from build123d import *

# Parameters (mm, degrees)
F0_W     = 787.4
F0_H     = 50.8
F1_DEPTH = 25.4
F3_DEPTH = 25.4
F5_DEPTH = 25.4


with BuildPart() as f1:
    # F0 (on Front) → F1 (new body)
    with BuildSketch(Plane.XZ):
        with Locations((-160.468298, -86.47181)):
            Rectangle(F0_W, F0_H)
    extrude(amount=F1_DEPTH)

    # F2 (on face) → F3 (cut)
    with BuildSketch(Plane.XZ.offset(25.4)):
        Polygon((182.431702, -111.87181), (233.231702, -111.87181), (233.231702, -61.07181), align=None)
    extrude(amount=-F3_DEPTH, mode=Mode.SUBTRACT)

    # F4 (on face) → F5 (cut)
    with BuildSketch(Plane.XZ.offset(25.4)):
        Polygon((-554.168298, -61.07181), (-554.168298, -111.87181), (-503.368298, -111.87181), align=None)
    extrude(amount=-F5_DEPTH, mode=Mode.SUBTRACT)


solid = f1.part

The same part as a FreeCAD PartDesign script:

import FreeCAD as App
import Part
import Sketcher

V = App.Vector
Q = App.Units.Quantity


def add_polygon(sketch, points):
    """Adds a closed chain of lines whose ends are joined by coincident constraints."""
    first, n = sketch.GeometryCount, len(points)
    for a, b in zip(points, points[1:] + points[:1]):
        sketch.addGeometry(Part.LineSegment(App.Vector(*a, 0), App.Vector(*b, 0)), False)
    for i in range(n):
        sketch.addConstraint(Sketcher.Constraint("Coincident", first + i, 2, first + (i + 1) % n, 1))

doc = App.newDocument("Part")
body = doc.addObject("PartDesign::Body", "Body")

# Sketch on XZ plane
sketch1 = body.newObject("Sketcher::SketchObject", "Sketch")
sketch1.AttachmentSupport = (doc.getObject("XZ_Plane"), [""])
sketch1.MapMode = "FlatFace"
add_polygon(sketch1, [(-554, -61), (-554, -112), (233, -112), (233, -61)])  # lines 0-3
sketch1.addConstraint([
    Sketcher.Constraint("Vertical", 0),
    Sketcher.Constraint("Horizontal", 1),
    Sketcher.Constraint("Vertical", 2),
    Sketcher.Constraint("Horizontal", 3),
    Sketcher.Constraint("DistanceX", 1, 1, 1, 2, Q("31 in")),
    Sketcher.Constraint("DistanceY", 0, 2, 0, 1, Q("2 in")),
    Sketcher.Constraint("DistanceX", 0, 2, -1, 1, Q("554.168298 mm")),
    Sketcher.Constraint("DistanceY", 0, 2, -1, 1, Q("111.87181 mm")),
])
pad1 = body.newObject("PartDesign::Pad", "Pad")
pad1.Profile = sketch1
pad1.Length = Q("1 in")

# Sketch on XZ plane
sketch2 = body.newObject("Sketcher::SketchObject", "Sketch001")
sketch2.AttachmentSupport = (doc.getObject("XZ_Plane"), [""])
sketch2.MapMode = "FlatFace"
sketch2.AttachmentOffset = App.Placement(V(0, 0, 1 * 25.4), App.Rotation())
add_polygon(sketch2, [(182, -112), (233, -112), (233, -61)])  # lines 0-2
sketch2.addConstraint([
    Sketcher.Constraint("Horizontal", 0),
    Sketcher.Constraint("Vertical", 1),
    Sketcher.Constraint("Equal", 0, 1),
    Sketcher.Constraint("DistanceX", 0, 1, 0, 2, Q("2 in")),
    Sketcher.Constraint("DistanceX", -1, 1, 2, 2, Q("182.431702 mm")),
    Sketcher.Constraint("DistanceY", 0, 2, -1, 1, Q("111.87181 mm")),
])
pocket1 = body.newObject("PartDesign::Pocket", "Pocket")
pocket1.Profile = sketch2
pocket1.Length = Q("1 in")

# Sketch on XZ plane
sketch3 = body.newObject("Sketcher::SketchObject", "Sketch002")
sketch3.AttachmentSupport = (doc.getObject("XZ_Plane"), [""])
sketch3.MapMode = "FlatFace"
sketch3.AttachmentOffset = App.Placement(V(0, 0, 1 * 25.4), App.Rotation())
add_polygon(sketch3, [(-554, -61), (-554, -112), (-503, -112)])  # lines 0-2
sketch3.addConstraint([
    Sketcher.Constraint("Vertical", 0),
    Sketcher.Constraint("Horizontal", 1),
    Sketcher.Constraint("Equal", 1, 0),
    Sketcher.Constraint("DistanceX", 1, 1, 1, 2, Q("2 in")),
    Sketcher.Constraint("DistanceX", 0, 2, -1, 1, Q("554.168298 mm")),
    Sketcher.Constraint("DistanceY", 0, 2, -1, 1, Q("111.87181 mm")),
])
pocket2 = body.newObject("PartDesign::Pocket", "Pocket001")
pocket2.Profile = sketch3
pocket2.Length = Q("1 in")

doc.recompute()
